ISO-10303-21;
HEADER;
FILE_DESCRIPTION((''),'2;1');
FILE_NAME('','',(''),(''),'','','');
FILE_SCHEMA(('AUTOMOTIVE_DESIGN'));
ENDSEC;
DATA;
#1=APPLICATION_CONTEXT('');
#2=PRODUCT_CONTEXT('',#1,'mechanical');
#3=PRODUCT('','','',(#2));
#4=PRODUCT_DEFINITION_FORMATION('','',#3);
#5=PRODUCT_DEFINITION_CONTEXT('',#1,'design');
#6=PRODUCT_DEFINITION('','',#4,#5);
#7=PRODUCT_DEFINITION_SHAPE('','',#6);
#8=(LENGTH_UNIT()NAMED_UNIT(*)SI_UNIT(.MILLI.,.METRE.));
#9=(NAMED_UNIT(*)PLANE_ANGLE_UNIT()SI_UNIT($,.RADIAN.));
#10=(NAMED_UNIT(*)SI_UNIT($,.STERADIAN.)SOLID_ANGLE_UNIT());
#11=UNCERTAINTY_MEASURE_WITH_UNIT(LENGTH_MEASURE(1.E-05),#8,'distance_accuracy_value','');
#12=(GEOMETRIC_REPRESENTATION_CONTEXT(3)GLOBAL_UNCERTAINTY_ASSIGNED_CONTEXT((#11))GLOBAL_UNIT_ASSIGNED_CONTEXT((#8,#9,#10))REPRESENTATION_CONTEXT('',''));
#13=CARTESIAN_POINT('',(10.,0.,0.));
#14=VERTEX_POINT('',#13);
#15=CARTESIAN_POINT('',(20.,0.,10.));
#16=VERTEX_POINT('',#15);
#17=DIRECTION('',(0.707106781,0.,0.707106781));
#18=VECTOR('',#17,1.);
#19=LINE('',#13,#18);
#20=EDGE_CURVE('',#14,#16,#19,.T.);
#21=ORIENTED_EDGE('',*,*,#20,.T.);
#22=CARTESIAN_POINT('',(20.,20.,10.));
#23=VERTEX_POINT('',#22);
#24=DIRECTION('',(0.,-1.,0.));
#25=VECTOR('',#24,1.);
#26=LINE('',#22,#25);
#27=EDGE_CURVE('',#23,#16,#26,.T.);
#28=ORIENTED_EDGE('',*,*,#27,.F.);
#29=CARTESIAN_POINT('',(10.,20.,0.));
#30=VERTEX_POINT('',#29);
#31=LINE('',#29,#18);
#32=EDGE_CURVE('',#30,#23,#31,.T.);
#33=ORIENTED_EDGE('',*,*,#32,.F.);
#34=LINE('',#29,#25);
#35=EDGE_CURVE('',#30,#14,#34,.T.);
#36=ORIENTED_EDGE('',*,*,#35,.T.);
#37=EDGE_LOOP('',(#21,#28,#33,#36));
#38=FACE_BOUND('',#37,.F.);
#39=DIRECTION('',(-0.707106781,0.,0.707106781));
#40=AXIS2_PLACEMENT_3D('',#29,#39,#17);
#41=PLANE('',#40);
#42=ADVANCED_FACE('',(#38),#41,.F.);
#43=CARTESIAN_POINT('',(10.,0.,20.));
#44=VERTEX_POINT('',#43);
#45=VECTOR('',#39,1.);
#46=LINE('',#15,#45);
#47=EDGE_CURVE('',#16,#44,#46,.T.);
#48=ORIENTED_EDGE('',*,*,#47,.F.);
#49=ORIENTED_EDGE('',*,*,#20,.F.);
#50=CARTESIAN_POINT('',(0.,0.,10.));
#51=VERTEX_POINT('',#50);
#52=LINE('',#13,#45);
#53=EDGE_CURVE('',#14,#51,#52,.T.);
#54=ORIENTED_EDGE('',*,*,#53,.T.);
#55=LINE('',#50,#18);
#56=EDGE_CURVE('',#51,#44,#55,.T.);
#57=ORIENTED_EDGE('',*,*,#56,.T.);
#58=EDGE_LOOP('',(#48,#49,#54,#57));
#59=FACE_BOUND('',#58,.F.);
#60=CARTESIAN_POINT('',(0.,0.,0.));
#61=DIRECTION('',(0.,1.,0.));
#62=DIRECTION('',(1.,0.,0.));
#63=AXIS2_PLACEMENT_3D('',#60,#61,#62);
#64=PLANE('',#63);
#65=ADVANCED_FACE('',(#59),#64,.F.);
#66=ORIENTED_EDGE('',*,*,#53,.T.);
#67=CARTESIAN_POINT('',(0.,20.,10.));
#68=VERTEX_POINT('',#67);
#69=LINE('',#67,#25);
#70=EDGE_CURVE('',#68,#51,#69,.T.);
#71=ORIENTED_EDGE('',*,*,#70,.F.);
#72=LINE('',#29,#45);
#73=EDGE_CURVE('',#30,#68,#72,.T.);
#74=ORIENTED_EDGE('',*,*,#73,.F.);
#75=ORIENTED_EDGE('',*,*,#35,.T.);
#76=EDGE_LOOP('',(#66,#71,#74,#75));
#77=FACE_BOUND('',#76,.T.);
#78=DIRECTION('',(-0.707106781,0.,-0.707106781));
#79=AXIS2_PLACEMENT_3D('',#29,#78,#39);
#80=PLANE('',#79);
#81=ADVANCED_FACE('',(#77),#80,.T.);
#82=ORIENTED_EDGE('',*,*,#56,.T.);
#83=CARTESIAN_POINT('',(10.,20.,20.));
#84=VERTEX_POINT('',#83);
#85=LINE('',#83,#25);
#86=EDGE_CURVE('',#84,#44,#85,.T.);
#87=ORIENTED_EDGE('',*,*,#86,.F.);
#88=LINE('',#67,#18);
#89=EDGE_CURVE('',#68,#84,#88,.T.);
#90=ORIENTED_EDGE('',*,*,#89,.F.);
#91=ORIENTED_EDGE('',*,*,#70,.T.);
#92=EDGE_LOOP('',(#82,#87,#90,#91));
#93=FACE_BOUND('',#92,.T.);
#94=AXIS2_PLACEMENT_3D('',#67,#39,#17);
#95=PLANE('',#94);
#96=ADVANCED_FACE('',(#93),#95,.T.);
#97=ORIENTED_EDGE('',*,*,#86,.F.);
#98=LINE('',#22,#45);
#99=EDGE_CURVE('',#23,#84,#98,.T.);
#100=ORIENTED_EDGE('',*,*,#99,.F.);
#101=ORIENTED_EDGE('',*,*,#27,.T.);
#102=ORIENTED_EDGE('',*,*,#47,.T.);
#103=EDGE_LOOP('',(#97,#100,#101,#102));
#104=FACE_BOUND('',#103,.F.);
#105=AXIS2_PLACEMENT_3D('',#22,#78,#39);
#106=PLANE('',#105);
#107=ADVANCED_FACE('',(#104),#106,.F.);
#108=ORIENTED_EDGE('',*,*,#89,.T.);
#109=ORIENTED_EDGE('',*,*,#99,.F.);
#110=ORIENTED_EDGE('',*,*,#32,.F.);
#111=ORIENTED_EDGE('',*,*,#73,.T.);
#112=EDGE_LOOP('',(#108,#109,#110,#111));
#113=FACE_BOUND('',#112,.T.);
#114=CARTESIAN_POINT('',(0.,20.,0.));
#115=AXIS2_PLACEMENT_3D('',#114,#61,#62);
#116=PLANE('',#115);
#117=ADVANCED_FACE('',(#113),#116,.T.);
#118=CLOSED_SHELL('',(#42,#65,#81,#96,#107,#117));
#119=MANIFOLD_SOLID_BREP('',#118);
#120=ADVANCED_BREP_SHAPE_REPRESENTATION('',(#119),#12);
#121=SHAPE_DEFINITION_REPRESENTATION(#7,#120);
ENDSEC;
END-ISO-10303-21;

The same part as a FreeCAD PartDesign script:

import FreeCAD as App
import Part
import Sketcher


def add_polygon(sketch, points):
    """Adds a closed chain of lines whose ends are joined by coincident constraints."""
    first, n = sketch.GeometryCount, len(points)
    for a, b in zip(points, points[1:] + points[:1]):
        sketch.addGeometry(Part.LineSegment(App.Vector(*a, 0), App.Vector(*b, 0)), False)
    for i in range(n):
        sketch.addConstraint(Sketcher.Constraint("Coincident", first + i, 2, first + (i + 1) % n, 1))

doc = App.newDocument("Part")
body = doc.addObject("PartDesign::Body", "Body")

# Sketch on XY plane
sketch1 = body.newObject("Sketcher::SketchObject", "Sketch")
sketch1.AttachmentSupport = (doc.getObject("XY_Plane"), [""])
sketch1.MapMode = "FlatFace"
add_polygon(sketch1, [(0, 20), (0, 0), (20, 0), (20, 20)])  # lines 0-3
sketch1.addConstraint([
    Sketcher.Constraint("Vertical", 0),
    Sketcher.Constraint("Horizontal", 1),
    Sketcher.Constraint("Vertical", 2),
    Sketcher.Constraint("Horizontal", 3),
    Sketcher.Constraint("Coincident", 0, 2, -1, 1),
    Sketcher.Constraint("Equal", 3, 0),
    Sketcher.Constraint("DistanceX", 1, 1, 1, 2, 20.0),
])
pad1 = body.newObject("PartDesign::Pad", "Pad")
pad1.Profile = sketch1
pad1.Length = 20

# Sketch on XZ plane
sketch2 = body.newObject("Sketcher::SketchObject", "Sketch001")
sketch2.AttachmentSupport = (doc.getObject("XZ_Plane"), [""])
sketch2.MapMode = "FlatFace"
sketch2.AttachmentOffset = App.Placement(App.Vector(0, 0, -20), App.Rotation())
add_polygon(sketch2, [(20, 0), (10, 0), (20, 10)])  # lines 0-2
sketch2.addConstraint([
    Sketcher.Constraint("Horizontal", 0),
    Sketcher.Constraint("Vertical", 2),
    Sketcher.Constraint("PointOnObject", 0, 2, -1),
    Sketcher.Constraint("Equal", 0, 2),
    Sketcher.Constraint("DistanceX", 0, 2, 0, 1, 10.0),
    Sketcher.Constraint("DistanceX", -1, 1, 0, 2, 10.0),
])
pocket1 = body.newObject("PartDesign::Pocket", "Pocket")
pocket1.Profile = sketch2
pocket1.Length = 20
pocket1.Reversed = True

# Sketch on XZ plane
sketch3 = body.newObject("Sketcher::SketchObject", "Sketch002")
sketch3.AttachmentSupport = (doc.getObject("XZ_Plane"), [""])
sketch3.MapMode = "FlatFace"
sketch3.AttachmentOffset = App.Placement(App.Vector(0, 0, -20), App.Rotation())
add_polygon(sketch3, [(20, 20), (20, 10), (10, 20)])  # lines 0-2
sketch3.addConstraint([
    Sketcher.Constraint("Vertical", 0),
    Sketcher.Constraint("Horizontal", 2),
    Sketcher.Constraint("Equal", 2, 0),
    Sketcher.Constraint("DistanceX", 2, 1, 2, 2, 10.0),
    Sketcher.Constraint("DistanceX", -1, 1, 0, 2, 20.0),
    Sketcher.Constraint("DistanceY", -1, 1, 0, 2, 10.0),
])
pocket2 = body.newObject("PartDesign::Pocket", "Pocket001")
pocket2.Profile = sketch3
pocket2.Length = 20
pocket2.Reversed = True

# Sketch on XZ plane
sketch4 = body.newObject("Sketcher::SketchObject", "Sketch003")
sketch4.AttachmentSupport = (doc.getObject("XZ_Plane"), [""])
sketch4.MapMode = "FlatFace"
sketch4.AttachmentOffset = App.Placement(App.Vector(0, 0, -20), App.Rotation())
add_polygon(sketch4, [(10, 0), (0, 0), (0, 10)])  # lines 0-2
sketch4.addConstraint([
    Sketcher.Constraint("Horizontal", 0),
    Sketcher.Constraint("Vertical", 1),
    Sketcher.Constraint("Coincident", 0, 2, -1, 1),
    Sketcher.Constraint("Equal", 0, 1),
    Sketcher.Constraint("DistanceX", 0, 2, 0, 1, 10.0),
])
pocket3 = body.newObject("PartDesign::Pocket", "Pocket002")
pocket3.Profile = sketch4
pocket3.Length = 20
pocket3.Reversed = True

# Sketch on XZ plane
sketch5 = body.newObject("Sketcher::SketchObject", "Sketch004")
sketch5.AttachmentSupport = (doc.getObject("XZ_Plane"), [""])
sketch5.MapMode = "FlatFace"
sketch5.AttachmentOffset = App.Placement(App.Vector(0, 0, -20), App.Rotation())
add_polygon(sketch5, [(0, 10), (0, 20), (10, 20)])  # lines 0-2
sketch5.addConstraint([
    Sketcher.Constraint("Vertical", 0),
    Sketcher.Constraint("Horizontal", 1),
    Sketcher.Constraint("PointOnObject", 0, 2, -2),
    Sketcher.Constraint("Equal", 1, 0),
    Sketcher.Constraint("DistanceX", 1, 1, 1, 2, 10.0),
    Sketcher.Constraint("DistanceY", -1, 1, 0, 2, 20.0),
])
pocket4 = body.newObject("PartDesign::Pocket", "Pocket003")
pocket4.Profile = sketch5
pocket4.Length = 20
pocket4.Reversed = True

doc.recompute()
